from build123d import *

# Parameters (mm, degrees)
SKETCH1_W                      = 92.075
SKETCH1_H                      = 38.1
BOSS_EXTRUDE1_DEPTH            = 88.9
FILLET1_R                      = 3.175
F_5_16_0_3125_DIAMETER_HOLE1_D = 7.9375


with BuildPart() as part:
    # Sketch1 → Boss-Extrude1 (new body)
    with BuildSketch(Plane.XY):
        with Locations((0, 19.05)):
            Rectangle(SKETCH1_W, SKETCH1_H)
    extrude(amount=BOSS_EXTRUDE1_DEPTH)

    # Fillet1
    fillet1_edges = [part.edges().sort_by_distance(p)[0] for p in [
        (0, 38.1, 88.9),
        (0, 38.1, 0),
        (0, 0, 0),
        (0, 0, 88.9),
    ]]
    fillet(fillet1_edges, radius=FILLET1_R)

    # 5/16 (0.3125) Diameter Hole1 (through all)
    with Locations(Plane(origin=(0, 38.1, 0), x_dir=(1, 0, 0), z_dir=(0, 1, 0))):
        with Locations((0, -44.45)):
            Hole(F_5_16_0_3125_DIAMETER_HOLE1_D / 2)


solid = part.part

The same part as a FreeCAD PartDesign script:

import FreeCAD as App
import Part
import Sketcher
from FreeCAD import Vector
Q = App.Units.Quantity


def edges_at(feature, points):
    """Names of the edges that pass closest to the given points."""
    edges = feature.Shape.Edges
    near = lambda p: min(range(len(edges)), key=lambda i: edges[i].distToShape(Part.Vertex(*p))[0])
    return sorted({f"Edge{near(p) + 1}" for p in points})


def add_polygon(sketch, points):
    """Adds a closed chain of lines whose ends are joined by coincident constraints."""
    first, n = sketch.GeometryCount, len(points)
    for a, b in zip(points, points[1:] + points[:1]):
        sketch.addGeometry(Part.LineSegment(App.Vector(*a, 0), App.Vector(*b, 0)), False)
    for i in range(n):
        sketch.addConstraint(Sketcher.Constraint("Coincident", first + i, 2, first + (i + 1) % n, 1))

doc = App.newDocument("Part")
body = doc.addObject("PartDesign::Body", "Body")

# Sketch on XY plane
sketch1 = doc.addObject("Sketcher::SketchObject", "Sketch")
body.addObject(sketch1)
sketch1.AttachmentSupport = (doc.XY_Plane, [""])
sketch1.MapMode = "FlatFace"
add_polygon(sketch1, [(-46, 38), (-46, 0), (46, 0), (46, 38)])  # lines 0-3
sketch1.addConstraint([
    Sketcher.Constraint("Vertical", 0),
    Sketcher.Constraint("Horizontal", 1),
    Sketcher.Constraint("Vertical", 2),
    Sketcher.Constraint("Horizontal", 3),
    Sketcher.Constraint("Symmetric", 0, 2, 1, 2, -1, 1),
    Sketcher.Constraint("DistanceY", 0, 2, 0, 1, Q("1.5 in")),
    Sketcher.Constraint("DistanceX", 1, 1, 1, 2, Q("3.625 in")),
])
pad1 = doc.addObject("PartDesign::Pad", "Pad")
body.addObject(pad1)
pad1.Profile = sketch1
pad1.Length = Q("3.5 in")
doc.recompute()

fillet = doc.addObject("PartDesign::Fillet", "Fillet")
body.addObject(fillet)
fillet.Base = (pad1, edges_at(pad1, [
    (0, 38.1, 88.9),
    (0, 38.1, 0),
    (0, 0, 0),
    (0, 0, 88.9),
]))
fillet.Radius = Q("0.125 in")

# Sketch on XZ plane
sketch2 = doc.addObject("Sketcher::SketchObject", "Sketch001")
body.addObject(sketch2)
sketch2.AttachmentSupport = (doc.XZ_Plane, [""])
sketch2.MapMode = "FlatFace"
sketch2.AttachmentOffset = App.Placement(Vector(0, 0, -1.5 * 25.4), App.Rotation())
sketch2.addGeometry(Part.Circle(Vector(0, 44.5, 0), Vector(0, 0, 1), 4), False)
sketch2.addConstraint([
    Sketcher.Constraint("PointOnObject", 0, 3, -2),
    Sketcher.Constraint("Diameter", 0, Q("0.3125 in")),
    Sketcher.Constraint("DistanceY", -1, 1, 0, 3, Q("1.75 in")),
])
doc.recompute()
hole = doc.addObject("PartDesign::Hole", "Hole")
body.addObject(hole)
hole.Profile = sketch2
hole.ThreadType = "None"
hole.Diameter = Q("0.3125 in")
hole.DepthType = "ThroughAll"
hole.Reversed = True

doc.recompute()
